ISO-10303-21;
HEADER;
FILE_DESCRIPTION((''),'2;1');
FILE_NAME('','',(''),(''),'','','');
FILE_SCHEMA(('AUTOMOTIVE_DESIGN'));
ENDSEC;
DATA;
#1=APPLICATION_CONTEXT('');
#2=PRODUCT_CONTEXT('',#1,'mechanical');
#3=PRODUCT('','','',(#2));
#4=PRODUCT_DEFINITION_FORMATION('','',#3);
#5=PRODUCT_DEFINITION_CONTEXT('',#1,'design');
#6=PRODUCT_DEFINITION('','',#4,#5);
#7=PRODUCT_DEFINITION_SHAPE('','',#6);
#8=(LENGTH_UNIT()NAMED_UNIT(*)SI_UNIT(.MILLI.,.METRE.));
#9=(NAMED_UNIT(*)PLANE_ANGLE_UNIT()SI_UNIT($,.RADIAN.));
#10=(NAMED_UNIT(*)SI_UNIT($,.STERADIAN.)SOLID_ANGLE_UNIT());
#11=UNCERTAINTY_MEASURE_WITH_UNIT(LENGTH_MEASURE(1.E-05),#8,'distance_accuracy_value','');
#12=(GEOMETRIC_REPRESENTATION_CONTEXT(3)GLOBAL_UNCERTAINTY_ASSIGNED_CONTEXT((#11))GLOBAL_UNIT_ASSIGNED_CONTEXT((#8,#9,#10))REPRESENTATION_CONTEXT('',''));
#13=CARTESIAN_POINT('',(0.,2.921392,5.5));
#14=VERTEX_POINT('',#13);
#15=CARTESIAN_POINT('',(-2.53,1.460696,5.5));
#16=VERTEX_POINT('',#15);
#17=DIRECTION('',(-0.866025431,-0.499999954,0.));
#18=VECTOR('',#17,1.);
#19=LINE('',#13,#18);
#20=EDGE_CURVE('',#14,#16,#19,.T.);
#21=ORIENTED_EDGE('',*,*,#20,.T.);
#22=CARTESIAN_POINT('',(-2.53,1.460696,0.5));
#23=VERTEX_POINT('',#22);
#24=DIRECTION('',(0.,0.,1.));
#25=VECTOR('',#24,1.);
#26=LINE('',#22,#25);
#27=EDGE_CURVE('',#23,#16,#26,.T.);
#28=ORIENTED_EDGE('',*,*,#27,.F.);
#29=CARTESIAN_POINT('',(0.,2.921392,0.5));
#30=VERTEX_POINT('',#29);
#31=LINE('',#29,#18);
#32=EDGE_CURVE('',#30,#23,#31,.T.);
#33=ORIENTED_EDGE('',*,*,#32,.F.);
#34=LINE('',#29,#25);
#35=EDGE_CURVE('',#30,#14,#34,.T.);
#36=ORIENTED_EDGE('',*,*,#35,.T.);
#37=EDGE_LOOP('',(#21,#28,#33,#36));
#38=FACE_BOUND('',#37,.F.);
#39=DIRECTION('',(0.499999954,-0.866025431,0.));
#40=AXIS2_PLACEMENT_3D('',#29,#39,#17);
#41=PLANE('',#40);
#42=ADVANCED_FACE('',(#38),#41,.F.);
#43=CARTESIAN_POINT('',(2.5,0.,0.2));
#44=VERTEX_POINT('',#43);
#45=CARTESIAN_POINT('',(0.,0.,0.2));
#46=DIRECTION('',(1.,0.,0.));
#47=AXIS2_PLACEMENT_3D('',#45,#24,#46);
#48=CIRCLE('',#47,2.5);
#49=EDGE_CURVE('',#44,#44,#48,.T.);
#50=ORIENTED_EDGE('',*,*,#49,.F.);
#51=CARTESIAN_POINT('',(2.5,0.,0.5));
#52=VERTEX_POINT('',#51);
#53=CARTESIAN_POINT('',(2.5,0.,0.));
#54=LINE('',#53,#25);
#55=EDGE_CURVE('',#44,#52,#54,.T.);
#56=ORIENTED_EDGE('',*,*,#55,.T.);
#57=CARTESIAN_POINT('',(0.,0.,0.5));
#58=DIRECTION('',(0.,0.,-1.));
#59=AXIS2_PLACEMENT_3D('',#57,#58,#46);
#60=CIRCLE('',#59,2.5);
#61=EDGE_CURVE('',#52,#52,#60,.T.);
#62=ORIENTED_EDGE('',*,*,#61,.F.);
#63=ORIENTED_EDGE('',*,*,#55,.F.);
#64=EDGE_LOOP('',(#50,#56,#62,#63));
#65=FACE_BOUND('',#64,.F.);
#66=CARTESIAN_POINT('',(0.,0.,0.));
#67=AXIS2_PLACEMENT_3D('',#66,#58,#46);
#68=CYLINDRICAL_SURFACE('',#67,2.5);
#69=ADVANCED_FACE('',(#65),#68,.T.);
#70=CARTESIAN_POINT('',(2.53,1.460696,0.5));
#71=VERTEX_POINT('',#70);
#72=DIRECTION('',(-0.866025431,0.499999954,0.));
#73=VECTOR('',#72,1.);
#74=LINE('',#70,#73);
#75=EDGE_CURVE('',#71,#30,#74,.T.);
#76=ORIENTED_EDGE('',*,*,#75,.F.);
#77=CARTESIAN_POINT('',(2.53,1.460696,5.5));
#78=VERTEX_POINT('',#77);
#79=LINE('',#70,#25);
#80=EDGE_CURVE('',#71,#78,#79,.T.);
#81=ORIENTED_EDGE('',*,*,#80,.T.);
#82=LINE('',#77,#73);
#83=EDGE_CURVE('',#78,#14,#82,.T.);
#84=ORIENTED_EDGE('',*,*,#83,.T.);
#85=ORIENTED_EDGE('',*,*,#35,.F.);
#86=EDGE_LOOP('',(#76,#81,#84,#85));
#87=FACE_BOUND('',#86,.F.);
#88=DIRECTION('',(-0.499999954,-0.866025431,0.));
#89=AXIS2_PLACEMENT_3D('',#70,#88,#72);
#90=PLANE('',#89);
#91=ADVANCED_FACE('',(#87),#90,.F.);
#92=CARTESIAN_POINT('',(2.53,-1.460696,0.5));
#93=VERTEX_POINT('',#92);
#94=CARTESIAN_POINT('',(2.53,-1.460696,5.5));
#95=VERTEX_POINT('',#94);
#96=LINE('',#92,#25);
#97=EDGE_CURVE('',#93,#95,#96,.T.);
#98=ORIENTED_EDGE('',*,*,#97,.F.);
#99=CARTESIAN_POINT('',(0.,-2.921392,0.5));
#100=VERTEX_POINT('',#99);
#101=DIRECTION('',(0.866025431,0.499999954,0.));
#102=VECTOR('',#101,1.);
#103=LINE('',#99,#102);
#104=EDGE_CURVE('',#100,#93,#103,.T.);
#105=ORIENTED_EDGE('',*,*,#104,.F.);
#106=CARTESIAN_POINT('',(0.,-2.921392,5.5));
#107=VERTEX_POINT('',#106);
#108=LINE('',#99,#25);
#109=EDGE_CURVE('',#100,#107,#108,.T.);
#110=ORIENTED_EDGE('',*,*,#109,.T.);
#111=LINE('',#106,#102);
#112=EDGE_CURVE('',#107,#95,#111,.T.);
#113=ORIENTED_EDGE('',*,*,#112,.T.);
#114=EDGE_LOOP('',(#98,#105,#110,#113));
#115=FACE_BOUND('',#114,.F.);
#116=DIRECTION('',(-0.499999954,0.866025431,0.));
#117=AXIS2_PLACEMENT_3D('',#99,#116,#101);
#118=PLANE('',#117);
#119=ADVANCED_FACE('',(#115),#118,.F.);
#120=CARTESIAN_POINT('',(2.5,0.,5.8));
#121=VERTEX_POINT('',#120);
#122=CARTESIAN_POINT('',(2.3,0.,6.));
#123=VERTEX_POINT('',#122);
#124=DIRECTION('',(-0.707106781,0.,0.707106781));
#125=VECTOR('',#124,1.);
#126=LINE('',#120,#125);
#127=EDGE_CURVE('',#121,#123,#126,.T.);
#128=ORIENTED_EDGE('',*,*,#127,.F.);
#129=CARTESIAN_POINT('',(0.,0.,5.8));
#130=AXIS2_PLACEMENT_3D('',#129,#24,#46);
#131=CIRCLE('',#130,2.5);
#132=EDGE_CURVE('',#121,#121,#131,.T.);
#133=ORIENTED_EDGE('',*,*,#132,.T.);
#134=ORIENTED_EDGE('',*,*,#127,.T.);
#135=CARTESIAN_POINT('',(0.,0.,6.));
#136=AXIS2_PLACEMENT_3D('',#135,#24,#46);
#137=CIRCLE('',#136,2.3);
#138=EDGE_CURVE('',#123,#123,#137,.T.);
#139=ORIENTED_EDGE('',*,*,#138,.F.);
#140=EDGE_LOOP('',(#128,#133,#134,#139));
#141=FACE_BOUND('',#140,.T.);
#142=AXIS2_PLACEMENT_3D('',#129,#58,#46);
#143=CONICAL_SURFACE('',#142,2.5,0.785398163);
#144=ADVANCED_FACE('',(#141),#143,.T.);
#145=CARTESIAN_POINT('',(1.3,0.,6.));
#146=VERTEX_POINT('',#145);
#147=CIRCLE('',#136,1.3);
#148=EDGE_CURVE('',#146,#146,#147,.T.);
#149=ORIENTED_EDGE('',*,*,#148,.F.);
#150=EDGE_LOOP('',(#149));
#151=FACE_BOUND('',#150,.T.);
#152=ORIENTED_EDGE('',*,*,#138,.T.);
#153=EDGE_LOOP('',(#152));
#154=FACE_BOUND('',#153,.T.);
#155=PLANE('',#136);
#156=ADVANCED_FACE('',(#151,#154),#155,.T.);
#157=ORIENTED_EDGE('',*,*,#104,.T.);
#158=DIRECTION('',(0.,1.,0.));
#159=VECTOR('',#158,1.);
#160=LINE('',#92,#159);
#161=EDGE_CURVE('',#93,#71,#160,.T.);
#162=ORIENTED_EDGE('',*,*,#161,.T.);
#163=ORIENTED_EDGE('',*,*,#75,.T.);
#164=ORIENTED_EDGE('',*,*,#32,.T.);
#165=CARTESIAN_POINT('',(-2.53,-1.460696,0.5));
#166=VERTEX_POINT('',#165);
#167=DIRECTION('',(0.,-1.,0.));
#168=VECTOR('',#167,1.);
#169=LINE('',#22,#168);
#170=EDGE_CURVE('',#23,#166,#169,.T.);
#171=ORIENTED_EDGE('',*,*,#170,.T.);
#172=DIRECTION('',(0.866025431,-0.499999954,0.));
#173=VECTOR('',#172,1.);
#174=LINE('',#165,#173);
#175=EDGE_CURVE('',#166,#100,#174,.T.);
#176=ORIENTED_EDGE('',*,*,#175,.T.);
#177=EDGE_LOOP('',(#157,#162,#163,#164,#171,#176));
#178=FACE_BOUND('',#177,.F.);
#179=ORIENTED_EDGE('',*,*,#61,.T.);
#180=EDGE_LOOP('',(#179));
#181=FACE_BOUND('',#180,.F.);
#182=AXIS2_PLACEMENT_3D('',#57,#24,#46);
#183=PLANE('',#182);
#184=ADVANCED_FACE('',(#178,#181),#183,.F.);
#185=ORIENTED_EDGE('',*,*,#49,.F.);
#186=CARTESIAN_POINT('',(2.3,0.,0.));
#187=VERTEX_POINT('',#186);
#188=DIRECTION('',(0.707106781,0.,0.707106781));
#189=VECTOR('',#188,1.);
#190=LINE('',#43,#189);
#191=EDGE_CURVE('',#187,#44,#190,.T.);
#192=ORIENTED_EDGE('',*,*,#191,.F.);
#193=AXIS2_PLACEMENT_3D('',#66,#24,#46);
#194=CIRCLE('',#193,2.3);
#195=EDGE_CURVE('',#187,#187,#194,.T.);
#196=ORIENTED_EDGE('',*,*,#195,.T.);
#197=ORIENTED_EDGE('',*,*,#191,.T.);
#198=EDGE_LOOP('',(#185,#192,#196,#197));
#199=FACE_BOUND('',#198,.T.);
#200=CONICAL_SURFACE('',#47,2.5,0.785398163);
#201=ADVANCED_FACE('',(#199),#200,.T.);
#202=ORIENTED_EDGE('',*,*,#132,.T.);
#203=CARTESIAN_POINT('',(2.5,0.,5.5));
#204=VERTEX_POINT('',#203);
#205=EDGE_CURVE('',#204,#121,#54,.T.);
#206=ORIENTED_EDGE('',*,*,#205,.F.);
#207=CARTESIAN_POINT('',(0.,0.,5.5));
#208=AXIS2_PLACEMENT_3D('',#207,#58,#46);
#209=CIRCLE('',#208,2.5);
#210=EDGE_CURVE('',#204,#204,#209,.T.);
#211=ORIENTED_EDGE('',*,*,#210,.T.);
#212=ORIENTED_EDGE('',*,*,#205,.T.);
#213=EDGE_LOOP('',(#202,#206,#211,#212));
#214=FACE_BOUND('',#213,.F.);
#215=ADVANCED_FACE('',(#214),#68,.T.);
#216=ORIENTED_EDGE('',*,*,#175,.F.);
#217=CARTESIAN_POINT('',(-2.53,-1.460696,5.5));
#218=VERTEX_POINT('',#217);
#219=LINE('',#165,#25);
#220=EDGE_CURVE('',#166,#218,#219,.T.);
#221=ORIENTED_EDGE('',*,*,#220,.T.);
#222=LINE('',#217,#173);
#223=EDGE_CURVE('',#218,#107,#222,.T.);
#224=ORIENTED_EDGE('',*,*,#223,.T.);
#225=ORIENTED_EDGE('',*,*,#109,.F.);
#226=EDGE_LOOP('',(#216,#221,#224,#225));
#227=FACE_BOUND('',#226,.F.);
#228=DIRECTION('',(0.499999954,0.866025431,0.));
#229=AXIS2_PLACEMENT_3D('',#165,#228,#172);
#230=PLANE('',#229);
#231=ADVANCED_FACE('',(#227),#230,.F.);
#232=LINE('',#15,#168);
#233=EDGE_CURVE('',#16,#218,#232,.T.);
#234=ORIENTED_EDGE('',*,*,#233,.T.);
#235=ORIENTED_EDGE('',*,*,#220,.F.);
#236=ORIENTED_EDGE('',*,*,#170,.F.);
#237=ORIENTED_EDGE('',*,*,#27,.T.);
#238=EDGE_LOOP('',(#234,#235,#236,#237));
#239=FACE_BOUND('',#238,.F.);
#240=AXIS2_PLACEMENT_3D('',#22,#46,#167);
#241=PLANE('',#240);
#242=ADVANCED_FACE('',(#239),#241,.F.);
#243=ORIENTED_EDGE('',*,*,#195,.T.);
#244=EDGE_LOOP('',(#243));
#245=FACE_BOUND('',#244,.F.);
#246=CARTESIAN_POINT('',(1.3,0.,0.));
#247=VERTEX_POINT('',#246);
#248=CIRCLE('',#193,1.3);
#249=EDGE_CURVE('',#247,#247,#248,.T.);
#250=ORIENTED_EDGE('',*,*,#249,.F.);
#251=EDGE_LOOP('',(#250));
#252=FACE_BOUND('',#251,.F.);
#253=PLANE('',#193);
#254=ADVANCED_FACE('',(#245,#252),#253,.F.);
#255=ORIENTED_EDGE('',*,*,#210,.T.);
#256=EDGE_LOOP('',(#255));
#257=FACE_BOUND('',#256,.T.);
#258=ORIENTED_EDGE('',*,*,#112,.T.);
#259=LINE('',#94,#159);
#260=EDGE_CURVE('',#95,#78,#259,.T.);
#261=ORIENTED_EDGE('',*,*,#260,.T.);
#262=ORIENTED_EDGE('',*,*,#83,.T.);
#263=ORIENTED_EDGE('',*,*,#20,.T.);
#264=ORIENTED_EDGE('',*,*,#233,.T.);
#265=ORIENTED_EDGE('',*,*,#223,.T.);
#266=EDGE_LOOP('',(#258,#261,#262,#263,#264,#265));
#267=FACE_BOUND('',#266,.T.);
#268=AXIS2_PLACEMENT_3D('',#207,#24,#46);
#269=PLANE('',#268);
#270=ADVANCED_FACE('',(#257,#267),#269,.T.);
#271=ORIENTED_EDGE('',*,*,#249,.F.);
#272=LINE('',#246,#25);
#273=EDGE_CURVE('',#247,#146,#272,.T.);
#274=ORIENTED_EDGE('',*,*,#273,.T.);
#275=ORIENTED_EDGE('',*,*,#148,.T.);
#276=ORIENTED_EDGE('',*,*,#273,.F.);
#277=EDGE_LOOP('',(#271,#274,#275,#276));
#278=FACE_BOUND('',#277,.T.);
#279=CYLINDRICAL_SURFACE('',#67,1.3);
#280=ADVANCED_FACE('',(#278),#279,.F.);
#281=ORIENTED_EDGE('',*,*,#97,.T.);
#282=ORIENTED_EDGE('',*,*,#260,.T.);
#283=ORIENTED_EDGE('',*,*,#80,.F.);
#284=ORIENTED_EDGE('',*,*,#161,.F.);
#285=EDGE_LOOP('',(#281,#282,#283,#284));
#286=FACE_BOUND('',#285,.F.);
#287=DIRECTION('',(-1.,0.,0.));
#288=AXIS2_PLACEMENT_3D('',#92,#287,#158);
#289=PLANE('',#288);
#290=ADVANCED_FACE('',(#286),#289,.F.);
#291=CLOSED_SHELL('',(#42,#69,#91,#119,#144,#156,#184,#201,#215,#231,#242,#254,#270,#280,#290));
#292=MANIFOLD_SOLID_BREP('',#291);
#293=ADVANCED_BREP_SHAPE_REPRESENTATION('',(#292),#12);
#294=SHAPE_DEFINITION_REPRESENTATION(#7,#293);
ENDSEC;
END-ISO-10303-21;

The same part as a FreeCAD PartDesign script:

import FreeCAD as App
import Part
import Sketcher
Q = App.Units.Quantity


def edges_at(feature, points):
    """Names of the edges that pass closest to the given points."""
    edges = feature.Shape.Edges
    near = lambda p: min(range(len(edges)), key=lambda i: edges[i].distToShape(Part.Vertex(*p))[0])
    return sorted({f"Edge{near(p) + 1}" for p in points})

doc = App.newDocument("Part")
body = doc.addObject("PartDesign::Body", "Body")

# Sketch on XY plane
sketch1 = doc.addObject("Sketcher::SketchObject", "Sketch")
body.addObject(sketch1)
sketch1.AttachmentSupport = (doc.XY_Plane, [""])
sketch1.MapMode = "FlatFace"
sketch1.addGeometry([
    Part.Circle(App.Vector(0, 0, 0), App.Vector(0, 0, 1), 2.5),
    Part.Circle(App.Vector(0, 0, 0), App.Vector(0, 0, 1), 1.3),
], False)
sketch1.addConstraint([
    Sketcher.Constraint("Coincident", 0, 3, -1, 1),
    Sketcher.Constraint("Coincident", 1, 3, -1, 1),
    Sketcher.Constraint("Diameter", 0, 5.0),
    Sketcher.Constraint("Diameter", 1, 2.6),
])
pad1 = doc.addObject("PartDesign::Pad", "Pad")
body.addObject(pad1)
pad1.Profile = sketch1
pad1.Length = 6

# Sketch on XY plane
sketch2 = doc.addObject("Sketcher::SketchObject", "Sketch001")
body.addObject(sketch2)
sketch2.AttachmentSupport = (doc.XY_Plane, [""])
sketch2.MapMode = "FlatFace"
sketch2.AttachmentOffset = App.Placement(App.Vector(0, 0, 0.5), App.Rotation())
sketch2.addGeometry([
    Part.LineSegment(App.Vector(2.53, -1.460696, 0), App.Vector(2.53, 1.460696, 0)),  # 0
    Part.LineSegment(App.Vector(2.53, 1.460696, 0), App.Vector(0, 2.921392, 0)),  # 1
    Part.LineSegment(App.Vector(0, 2.921392, 0), App.Vector(-2.53, 1.460696, 0)),  # 2
    Part.LineSegment(App.Vector(-2.53, 1.460696, 0), App.Vector(-2.53, -1.460696, 0)),  # 3
    Part.LineSegment(App.Vector(-2.53, -1.460696, 0), App.Vector(0, -2.921392, 0)),  # 4
    Part.LineSegment(App.Vector(0, -2.921392, 0), App.Vector(2.53, -1.460696, 0)),  # 5
    Part.Circle(App.Vector(0, 0, 0), App.Vector(0, 0, 1), 1.3),  # 6
], False)
sketch2.addConstraint([
    Sketcher.Constraint("Coincident", 0, 2, 1, 1),
    Sketcher.Constraint("Coincident", 1, 2, 2, 1),
    Sketcher.Constraint("Coincident", 2, 2, 3, 1),
    Sketcher.Constraint("Coincident", 3, 2, 4, 1),
    Sketcher.Constraint("Coincident", 4, 2, 5, 1),
    Sketcher.Constraint("Coincident", 5, 2, 0, 1),
    Sketcher.Constraint("Vertical", 0),
    Sketcher.Constraint("Vertical", 3),
    Sketcher.Constraint("Coincident", 6, 3, -1, 1),
    Sketcher.Constraint("Symmetric", 0, 2, 3, 2, -1, 1),
    Sketcher.Constraint("Symmetric", 1, 2, 4, 2, -1, 1),
    Sketcher.Constraint("PointOnObject", 1, 2, -2),
    Sketcher.Constraint("Parallel", 2, 5),
    Sketcher.Constraint("Horizontal", 0, 2, 2, 2),
    Sketcher.Constraint("Diameter", 6, 2.6),
    Sketcher.Constraint("Angle", 1, Q("150.000003 deg")),
    Sketcher.Constraint("DistanceX", -1, 1, 0, 2, 2.53),
    Sketcher.Constraint("DistanceY", 0, 1, 0, 2, 2.921392),
])
pad2 = doc.addObject("PartDesign::Pad", "Pad001")
body.addObject(pad2)
pad2.Profile = sketch2
pad2.Length = 5
doc.recompute()

chamfer = doc.addObject("PartDesign::Chamfer", "Chamfer")
body.addObject(chamfer)
chamfer.Base = (pad2, edges_at(pad2, [(-2.5, 0, 6), (-2.5, 0, 0)]))
chamfer.Size = 0.2

doc.recompute()
